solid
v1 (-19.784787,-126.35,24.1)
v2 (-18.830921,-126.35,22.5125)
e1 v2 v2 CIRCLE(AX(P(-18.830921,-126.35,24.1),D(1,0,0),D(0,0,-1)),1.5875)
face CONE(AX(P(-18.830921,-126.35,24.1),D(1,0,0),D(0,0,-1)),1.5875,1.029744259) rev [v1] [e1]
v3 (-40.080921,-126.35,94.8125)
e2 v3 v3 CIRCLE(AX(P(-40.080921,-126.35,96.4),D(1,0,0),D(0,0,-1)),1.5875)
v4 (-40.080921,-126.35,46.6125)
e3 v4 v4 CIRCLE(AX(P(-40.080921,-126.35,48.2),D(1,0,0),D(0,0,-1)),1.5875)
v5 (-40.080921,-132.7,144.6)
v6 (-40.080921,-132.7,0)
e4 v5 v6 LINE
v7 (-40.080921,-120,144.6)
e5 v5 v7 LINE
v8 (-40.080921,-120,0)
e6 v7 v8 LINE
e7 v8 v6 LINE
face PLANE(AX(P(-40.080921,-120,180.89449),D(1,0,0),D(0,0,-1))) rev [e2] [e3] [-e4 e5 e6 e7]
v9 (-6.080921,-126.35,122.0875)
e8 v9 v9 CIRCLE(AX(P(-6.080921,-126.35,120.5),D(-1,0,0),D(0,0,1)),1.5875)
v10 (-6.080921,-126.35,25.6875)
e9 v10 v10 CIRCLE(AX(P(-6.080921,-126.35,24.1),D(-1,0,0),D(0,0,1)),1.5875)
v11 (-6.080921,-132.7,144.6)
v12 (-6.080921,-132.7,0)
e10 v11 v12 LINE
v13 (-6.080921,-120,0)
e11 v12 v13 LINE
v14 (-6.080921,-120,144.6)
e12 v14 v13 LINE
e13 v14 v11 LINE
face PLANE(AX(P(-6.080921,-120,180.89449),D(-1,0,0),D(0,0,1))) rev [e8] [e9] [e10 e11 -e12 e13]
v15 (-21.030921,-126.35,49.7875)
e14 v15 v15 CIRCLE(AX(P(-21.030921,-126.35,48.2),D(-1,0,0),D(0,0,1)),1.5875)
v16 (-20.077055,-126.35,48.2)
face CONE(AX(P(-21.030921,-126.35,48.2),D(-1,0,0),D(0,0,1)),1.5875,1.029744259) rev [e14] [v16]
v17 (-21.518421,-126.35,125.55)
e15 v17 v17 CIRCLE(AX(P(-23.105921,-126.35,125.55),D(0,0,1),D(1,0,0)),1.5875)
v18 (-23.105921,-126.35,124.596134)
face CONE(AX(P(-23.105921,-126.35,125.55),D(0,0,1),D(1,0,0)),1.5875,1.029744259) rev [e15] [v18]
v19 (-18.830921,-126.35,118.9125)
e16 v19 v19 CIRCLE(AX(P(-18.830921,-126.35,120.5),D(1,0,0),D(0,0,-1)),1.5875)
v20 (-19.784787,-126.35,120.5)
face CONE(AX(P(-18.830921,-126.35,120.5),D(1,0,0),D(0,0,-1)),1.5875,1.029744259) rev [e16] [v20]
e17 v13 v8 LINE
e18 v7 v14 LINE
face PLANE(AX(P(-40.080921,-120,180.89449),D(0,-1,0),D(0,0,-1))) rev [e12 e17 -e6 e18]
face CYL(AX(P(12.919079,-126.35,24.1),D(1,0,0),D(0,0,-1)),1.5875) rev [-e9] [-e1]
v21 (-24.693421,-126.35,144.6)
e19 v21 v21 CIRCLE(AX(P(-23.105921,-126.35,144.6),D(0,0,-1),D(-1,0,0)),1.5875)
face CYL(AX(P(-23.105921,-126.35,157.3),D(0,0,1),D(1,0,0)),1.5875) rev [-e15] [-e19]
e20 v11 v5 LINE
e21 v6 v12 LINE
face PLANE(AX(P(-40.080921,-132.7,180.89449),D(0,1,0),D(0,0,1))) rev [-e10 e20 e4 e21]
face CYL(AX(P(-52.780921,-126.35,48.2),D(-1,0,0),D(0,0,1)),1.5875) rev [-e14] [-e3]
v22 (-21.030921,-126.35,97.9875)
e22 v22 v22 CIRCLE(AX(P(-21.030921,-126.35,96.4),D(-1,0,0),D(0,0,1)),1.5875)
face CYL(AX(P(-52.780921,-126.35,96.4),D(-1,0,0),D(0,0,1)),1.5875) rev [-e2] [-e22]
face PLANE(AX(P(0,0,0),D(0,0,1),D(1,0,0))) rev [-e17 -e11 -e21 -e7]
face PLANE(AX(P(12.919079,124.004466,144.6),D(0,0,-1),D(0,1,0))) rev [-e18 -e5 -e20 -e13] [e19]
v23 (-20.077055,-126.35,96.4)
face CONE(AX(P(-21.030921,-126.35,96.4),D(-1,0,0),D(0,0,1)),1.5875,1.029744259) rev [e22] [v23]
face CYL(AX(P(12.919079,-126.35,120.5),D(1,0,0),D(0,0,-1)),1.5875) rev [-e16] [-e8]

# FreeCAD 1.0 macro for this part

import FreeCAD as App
import Part
import Sketcher
from FreeCAD import Vector
Q = App.Units.Quantity

doc = App.newDocument("Part")
body = doc.addObject("PartDesign::Body", "Body")

sketch1 = body.newObject("Sketcher::SketchObject", "Sketch")
sketch1.AttachmentSupport = (doc.getObject("XY_Plane"), [""])
sketch1.MapMode = "FlatFace"
sketch1.addGeometry([
    Part.LineSegment(Vector(-40, -120, 0), Vector(-40, -133, 0)),
    Part.LineSegment(Vector(-40, -133, 0), Vector(-6, -133, 0)),
    Part.LineSegment(Vector(-6, -133, 0), Vector(-6, -120, 0)),
    Part.LineSegment(Vector(-6, -120, 0), Vector(-40, -120, 0)),
], False)
sketch1.addConstraint([
    Sketcher.Constraint("Coincident", 0, 2, 1, 1),
    Sketcher.Constraint("Coincident", 1, 2, 2, 1),
    Sketcher.Constraint("Coincident", 2, 2, 3, 1),
    Sketcher.Constraint("Coincident", 3, 2, 0, 1),
    Sketcher.Constraint("Vertical", 0),
    Sketcher.Constraint("Horizontal", 1),
    Sketcher.Constraint("Vertical", 2),
    Sketcher.Constraint("Horizontal", 3),
    Sketcher.Constraint("DistanceY", 0, 2, 0, 1, Q("0.5 in")),
    Sketcher.Constraint("DistanceX", 1, 1, 1, 2, 34.0),
    Sketcher.Constraint("DistanceY", 0, 2, -1, 1, 132.7),
    Sketcher.Constraint("DistanceX", 0, 2, -1, 1, 40.080921),
])
pad1 = body.newObject("PartDesign::Pad", "Pad")
pad1.Profile = sketch1
pad1.Length = 144.6

sketch2 = body.newObject("Sketcher::SketchObject", "Sketch001")
sketch2.AttachmentSupport = (doc.getObject("YZ_Plane"), [""])
sketch2.MapMode = "FlatFace"
sketch2.AttachmentOffset = App.Placement(Vector(0, 0, 12.919079), App.Rotation())
sketch2.addGeometry([
    Part.Circle(Vector(-126.3, -6.3, 0), Vector(0, 0, 1), 1.6),
    Part.Circle(Vector(-146.1, 150.9, 0), Vector(0, 0, 1), 1.6),
    Part.Circle(Vector(-172.2, 150.9, 0), Vector(0, 0, 1), 1.6),
    Part.Circle(Vector(-126.3, 120.5, 0), Vector(0, 0, 1), 1.6),
    Part.Circle(Vector(-126.3, 24.1, 0), Vector(0, 0, 1), 1.6),
    Part.Circle(Vector(172.2, 150.9, 0), Vector(0, 0, 1), 1.6),
    Part.Circle(Vector(146.1, 150.9, 0), Vector(0, 0, 1), 1.6),
    Part.Circle(Vector(126.3, 120.5, 0), Vector(0, 0, 1), 1.6),
    Part.Circle(Vector(126.3, 24.1, 0), Vector(0, 0, 1), 1.6),
    Part.Circle(Vector(126.3, -6.3, 0), Vector(0, 0, 1), 1.6),
], False)
sketch2.addConstraint([
    Sketcher.Constraint("Equal", 0, 1),
    Sketcher.Constraint("Equal", 1, 2),
    Sketcher.Constraint("Equal", 2, 3),
    Sketcher.Constraint("Equal", 3, 4),
    Sketcher.Constraint("Equal", 4, 5),
    Sketcher.Constraint("Equal", 5, 6),
    Sketcher.Constraint("Equal", 6, 7),
    Sketcher.Constraint("Equal", 7, 8),
    Sketcher.Constraint("Equal", 8, 9),
    Sketcher.Constraint("Symmetric", 2, 3, 5, 3, -2),
    Sketcher.Constraint("Symmetric", 1, 3, 6, 3, -2),
    Sketcher.Constraint("Symmetric", 3, 3, 7, 3, -2),
    Sketcher.Constraint("Symmetric", 4, 3, 8, 3, -2),
    Sketcher.Constraint("Symmetric", 0, 3, 9, 3, -2),
    Sketcher.Constraint("Horizontal", 1, 3, 2, 3),
    Sketcher.Constraint("Vertical", 0, 3, 3, 3),
    Sketcher.Constraint("Vertical", 3, 3, 4, 3),
    Sketcher.Constraint("Diameter", 0, Q("0.125 in")),
    Sketcher.Constraint("DistanceY", 0, 3, -1, 1, Q("0.25 in")),
    Sketcher.Constraint("DistanceX", 0, 3, -1, 1, 126.35),
    Sketcher.Constraint("DistanceY", -1, 1, 1, 3, 150.95),
    Sketcher.Constraint("DistanceY", -1, 1, 3, 3, 120.5),
    Sketcher.Constraint("DistanceY", -1, 1, 4, 3, 24.1),
    Sketcher.Constraint("DistanceX", 1, 3, 5, 3, 318.25),
    Sketcher.Constraint("DistanceX", 1, 3, -1, 1, 146.083333),
])
doc.recompute()
hole = body.newObject("PartDesign::Hole", "Hole")
hole.Profile = sketch2
hole.ThreadType = "None"
hole.Diameter = Q("0.125 in")
hole.DepthType = "Dimension"
hole.Depth = Q("1.25 in")
hole.DrillPoint = "Angled"
hole.DrillPointAngle = 118
hole.HoleCutType = "Countersink"
hole.HoleCutDiameter = Q("0.4 in")
hole.HoleCutCountersinkAngle = 82

sketch3 = body.newObject("Sketcher::SketchObject", "Sketch002")
sketch3.AttachmentSupport = (doc.getObject("YZ_Plane"), [""])
sketch3.MapMode = "FlatFace"
sketch3.AttachmentOffset = App.Placement(Vector(0, 0, 12.919079), App.Rotation())
sketch3.addGeometry([
    Part.Circle(Vector(126.3, 150.9, 0), Vector(0, 0, 1), 1.6),
    Part.Circle(Vector(146.1, -6.3, 0), Vector(0, 0, 1), 1.6),
    Part.Circle(Vector(172.2, -6.3, 0), Vector(0, 0, 1), 1.6),
    Part.Circle(Vector(126.3, 24.1, 0), Vector(0, 0, 1), 1.6),
    Part.Circle(Vector(126.3, 120.5, 0), Vector(0, 0, 1), 1.6),
    Part.Circle(Vector(-172.2, -6.3, 0), Vector(0, 0, 1), 1.6),
    Part.Circle(Vector(-146.1, -6.3, 0), Vector(0, 0, 1), 1.6),
    Part.Circle(Vector(-126.3, 24.1, 0), Vector(0, 0, 1), 1.6),
    Part.Circle(Vector(-126.3, 120.5, 0), Vector(0, 0, 1), 1.6),
    Part.Circle(Vector(-126.3, 150.9, 0), Vector(0, 0, 1), 1.6),
], False)
sketch3.addConstraint([
    Sketcher.Constraint("Equal", 0, 1),
    Sketcher.Constraint("Equal", 1, 2),
    Sketcher.Constraint("Equal", 2, 3),
    Sketcher.Constraint("Equal", 3, 4),
    Sketcher.Constraint("Equal", 4, 5),
    Sketcher.Constraint("Equal", 5, 6),
    Sketcher.Constraint("Equal", 6, 7),
    Sketcher.Constraint("Equal", 7, 8),
    Sketcher.Constraint("Equal", 8, 9),
    Sketcher.Constraint("Symmetric", 2, 3, 5, 3, -2),
    Sketcher.Constraint("Symmetric", 1, 3, 6, 3, -2),
    Sketcher.Constraint("Symmetric", 3, 3, 7, 3, -2),
    Sketcher.Constraint("Symmetric", 4, 3, 8, 3, -2),
    Sketcher.Constraint("Symmetric", 0, 3, 9, 3, -2),
    Sketcher.Constraint("Horizontal", 1, 3, 2, 3),
    Sketcher.Constraint("Vertical", 0, 3, 3, 3),
    Sketcher.Constraint("Vertical", 3, 3, 4, 3),
    Sketcher.Constraint("Diameter", 0, Q("0.125 in")),
    Sketcher.Constraint("DistanceY", 1, 3, -1, 1, Q("0.25 in")),
    Sketcher.Constraint("DistanceX", -1, 1, 0, 3, 126.35),
    Sketcher.Constraint("DistanceY", -1, 1, 0, 3, 150.95),
    Sketcher.Constraint("DistanceY", -1, 1, 3, 3, 24.1),
    Sketcher.Constraint("DistanceY", -1, 1, 4, 3, 120.5),
    Sketcher.Constraint("DistanceX", 5, 3, 1, 3, 318.25),
    Sketcher.Constraint("DistanceX", -1, 1, 1, 3, 146.083333),
])
doc.recompute()
hole2 = body.newObject("PartDesign::Hole", "Hole001")
hole2.Profile = sketch3
hole2.ThreadType = "None"
hole2.Diameter = Q("0.125 in")
hole2.DepthType = "Dimension"
hole2.Depth = Q("1.25 in")
hole2.DrillPoint = "Angled"
hole2.DrillPointAngle = 118
hole2.HoleCutType = "Countersink"
hole2.HoleCutDiameter = Q("0.4 in")
hole2.HoleCutCountersinkAngle = 82

sketch4 = body.newObject("Sketcher::SketchObject", "Sketch003")
sketch4.AttachmentSupport = (doc.getObject("XY_Plane"), [""])
sketch4.MapMode = "FlatFace"
sketch4.AttachmentOffset = App.Placement(Vector(0, 0, 157.3), App.Rotation())
sketch4.addGeometry([
    Part.Circle(Vector(-23.1, -207.8, 0), Vector(0, 0, 1), 1.6),
    Part.Circle(Vector(-23.1, -126.3, 0), Vector(0, 0, 1), 1.6),
], False)
sketch4.addConstraint([
    Sketcher.Constraint("Equal", 0, 1),
    Sketcher.Constraint("Vertical", 0, 3, 1, 3),
    Sketcher.Constraint("Diameter", 0, Q("0.125 in")),
    Sketcher.Constraint("DistanceY", 0, 3, -1, 1, 207.775),
    Sketcher.Constraint("DistanceY", 1, 3, -1, 1, 126.35),
    Sketcher.Constraint("DistanceX", 0, 3, -1, 1, 23.105921),
])
doc.recompute()
hole3 = body.newObject("PartDesign::Hole", "Hole002")
hole3.Profile = sketch4
hole3.ThreadType = "None"
hole3.Diameter = Q("0.125 in")
hole3.DepthType = "Dimension"
hole3.Depth = Q("1.25 in")
hole3.DrillPoint = "Angled"
hole3.DrillPointAngle = 118
hole3.HoleCutType = "Countersink"
hole3.HoleCutDiameter = Q("0.4 in")
hole3.HoleCutCountersinkAngle = 82

sketch5 = body.newObject("Sketcher::SketchObject", "Sketch004")
sketch5.AttachmentSupport = (doc.getObject("YZ_Plane"), [""])
sketch5.MapMode = "FlatFace"
sketch5.AttachmentOffset = App.Placement(Vector(0, 0, -52.780921), App.Rotation())
sketch5.addGeometry([
    Part.Circle(Vector(207.8, 322.6, 0), Vector(0, 0, 1), 1.6),
    Part.Circle(Vector(207.8, 215.1, 0), Vector(0, 0, 1), 1.6),
    Part.Circle(Vector(207.8, 127, 0), Vector(0, 0, 1), 1.6),
    Part.Circle(Vector(172.2, -6.3, 0), Vector(0, 0, 1), 1.6),
    Part.Circle(Vector(146.1, -6.3, 0), Vector(0, 0, 1), 1.6),
    Part.Circle(Vector(94.6, 150.9, 0), Vector(0, 0, 1), 1.6),
    Part.Circle(Vector(0, 150.9, 0), Vector(0, 0, 1), 1.6),
    Part.Circle(Vector(-94.6, 150.9, 0), Vector(0, 0, 1), 1.6),
    Part.Circle(Vector(-146.1, -6.3, 0), Vector(0, 0, 1), 1.6),
    Part.Circle(Vector(-172.2, -6.3, 0), Vector(0, 0, 1), 1.6),
    Part.Circle(Vector(-207.8, 127, 0), Vector(0, 0, 1), 1.6),
    Part.Circle(Vector(-207.8, 215.1, 0), Vector(0, 0, 1), 1.6),
    Part.Circle(Vector(-207.8, 322.6, 0), Vector(0, 0, 1), 1.6),
    Part.Circle(Vector(-166.8, 291.5, 0), Vector(0, 0, 1), 1.6),
    Part.Circle(Vector(-41, 291.5, 0), Vector(0, 0, 1), 1.6),
    Part.Circle(Vector(41, 291.5, 0), Vector(0, 0, 1), 1.6),
    Part.Circle(Vector(166.8, 291.5, 0), Vector(0, 0, 1), 1.6),
    Part.Circle(Vector(0, 182.7, 0), Vector(0, 0, 1), 1.6),
    Part.Circle(Vector(0, 291.5, 0), Vector(0, 0, 1), 1.6),
    Part.Circle(Vector(0, 401.9, 0), Vector(0, 0, 1), 1.6),
    Part.Circle(Vector(126.3, 96.4, 0), Vector(0, 0, 1), 1.6),
    Part.Circle(Vector(126.3, 48.2, 0), Vector(0, 0, 1), 1.6),
    Part.Circle(Vector(-126.3, 48.2, 0), Vector(0, 0, 1), 1.6),
    Part.Circle(Vector(-126.3, 96.4, 0), Vector(0, 0, 1), 1.6),
], False)
sketch5.addConstraint([
    Sketcher.Constraint("Equal", 0, 1),
    Sketcher.Constraint("Equal", 1, 2),
    Sketcher.Constraint("Equal", 2, 3),
    Sketcher.Constraint("Equal", 3, 4),
    Sketcher.Constraint("Equal", 4, 5),
    Sketcher.Constraint("Equal", 5, 6),
    Sketcher.Constraint("Equal", 6, 7),
    Sketcher.Constraint("Equal", 7, 8),
    Sketcher.Constraint("Equal", 8, 9),
    Sketcher.Constraint("Equal", 9, 10),
    Sketcher.Constraint("Equal", 10, 11),
    Sketcher.Constraint("Equal", 11, 12),
    Sketcher.Constraint("Equal", 12, 13),
    Sketcher.Constraint("Equal", 13, 14),
    Sketcher.Constraint("Equal", 14, 15),
    Sketcher.Constraint("Equal", 15, 16),
    Sketcher.Constraint("Equal", 16, 17),
    Sketcher.Constraint("Equal", 17, 18),
    Sketcher.Constraint("Equal", 18, 19),
    Sketcher.Constraint("Equal", 19, 20),
    Sketcher.Constraint("Equal", 20, 21),
    Sketcher.Constraint("Equal", 21, 22),
    Sketcher.Constraint("Equal", 22, 23),
    Sketcher.Constraint("Symmetric", 5, 3, 7, 3, -2),
    Sketcher.Constraint("Symmetric", 4, 3, 8, 3, -2),
    Sketcher.Constraint("Symmetric", 3, 3, 9, 3, -2),
    Sketcher.Constraint("Symmetric", 2, 3, 10, 3, -2),
    Sketcher.Constraint("Symmetric", 1, 3, 11, 3, -2),
    Sketcher.Constraint("Symmetric", 0, 3, 12, 3, -2),
    Sketcher.Constraint("Symmetric", 14, 3, 15, 3, -2),
    Sketcher.Constraint("Symmetric", 13, 3, 16, 3, -2),
    Sketcher.Constraint("Symmetric", 21, 3, 22, 3, -2),
    Sketcher.Constraint("Symmetric", 20, 3, 23, 3, -2),
    Sketcher.Constraint("PointOnObject", 6, 3, -2),
    Sketcher.Constraint("PointOnObject", 17, 3, -2),
    Sketcher.Constraint("PointOnObject", 18, 3, -2),
    Sketcher.Constraint("PointOnObject", 19, 3, -2),
    Sketcher.Constraint("Horizontal", 3, 3, 4, 3),
    Sketcher.Constraint("Horizontal", 5, 3, 6, 3),
    Sketcher.Constraint("Horizontal", 13, 3, 14, 3),
    Sketcher.Constraint("Horizontal", 16, 3, 18, 3),
    Sketcher.Constraint("Vertical", 0, 3, 1, 3),
    Sketcher.Constraint("Vertical", 1, 3, 2, 3),
    Sketcher.Constraint("Vertical", 20, 3, 21, 3),
    Sketcher.Constraint("Diameter", 0, Q("0.125 in")),
    Sketcher.Constraint("DistanceY", -1, 1, 2, 3, Q("5 in")),
    Sketcher.Constraint("DistanceY", 3, 3, -1, 1, Q("0.25 in")),
    Sketcher.Constraint("DistanceY", 6, 3, 17, 3, Q("1.25 in")),
    Sketcher.Constraint("DistanceX", 5, 3, 20, 3, Q("1.25 in")),
    Sketcher.Constraint("DistanceX", -1, 1, 0, 3, 207.775),
    Sketcher.Constraint("DistanceX", -1, 1, 5, 3, 94.6),
    Sketcher.Constraint("DistanceY", -1, 1, 5, 3, 150.95),
    Sketcher.Constraint("DistanceY", -1, 1, 20, 3, 96.4),
    Sketcher.Constraint("DistanceY", -1, 1, 21, 3, 48.2),
    Sketcher.Constraint("DistanceX", 8, 3, 3, 3, 318.25),
    Sketcher.Constraint("DistanceY", -1, 1, 0, 3, 322.59712),
    Sketcher.Constraint("DistanceY", -1, 1, 13, 3, 291.546061),
    Sketcher.Constraint("DistanceY", -1, 1, 19, 3, 401.942122),
    Sketcher.Constraint("DistanceY", -1, 1, 1, 3, 215.064747),
    Sketcher.Constraint("DistanceX", -1, 1, 3, 3, 172.166667),
    Sketcher.Constraint("DistanceX", 13, 3, -1, 1, 166.795833),
    Sketcher.Constraint("DistanceX", 14, 3, -1, 1, 40.979167),
])
doc.recompute()
hole4 = body.newObject("PartDesign::Hole", "Hole003")
hole4.Profile = sketch5
hole4.ThreadType = "None"
hole4.Diameter = Q("0.125 in")
hole4.DepthType = "Dimension"
hole4.Depth = Q("1.25 in")
hole4.DrillPoint = "Angled"
hole4.DrillPointAngle = 118
hole4.HoleCutType = "Countersink"
hole4.HoleCutDiameter = Q("0.4 in")
hole4.HoleCutCountersinkAngle = 82
hole4.Reversed = True

sketch6 = body.newObject("Sketcher::SketchObject", "Sketch005")
sketch6.AttachmentSupport = (doc.getObject("YZ_Plane"), [""])
sketch6.MapMode = "FlatFace"
sketch6.AttachmentOffset = App.Placement(Vector(0, 0, -52.780921), App.Rotation())
sketch6.addGeometry([
    Part.Circle(Vector(-207.8, -178, 0), Vector(0, 0, 1), 1.6),
    Part.Circle(Vector(-207.8, -70.5, 0), Vector(0, 0, 1), 1.6),
    Part.Circle(Vector(-207.8, 17.6, 0), Vector(0, 0, 1), 1.6),
    Part.Circle(Vector(-172.2, 150.9, 0), Vector(0, 0, 1), 1.6),
    Part.Circle(Vector(-146.1, 150.9, 0), Vector(0, 0, 1), 1.6),
    Part.Circle(Vector(-94.6, -6.3, 0), Vector(0, 0, 1), 1.6),
    Part.Circle(Vector(0, -6.3, 0), Vector(0, 0, 1), 1.6),
    Part.Circle(Vector(94.6, -6.3, 0), Vector(0, 0, 1), 1.6),
    Part.Circle(Vector(146.1, 150.9, 0), Vector(0, 0, 1), 1.6),
    Part.Circle(Vector(172.2, 150.9, 0), Vector(0, 0, 1), 1.6),
    Part.Circle(Vector(207.8, 17.6, 0), Vector(0, 0, 1), 1.6),
    Part.Circle(Vector(207.8, -70.5, 0), Vector(0, 0, 1), 1.6),
    Part.Circle(Vector(207.8, -178, 0), Vector(0, 0, 1), 1.6),
    Part.Circle(Vector(166.8, -146.9, 0), Vector(0, 0, 1), 1.6),
    Part.Circle(Vector(41, -146.9, 0), Vector(0, 0, 1), 1.6),
    Part.Circle(Vector(-41, -146.9, 0), Vector(0, 0, 1), 1.6),
    Part.Circle(Vector(-166.8, -146.9, 0), Vector(0, 0, 1), 1.6),
    Part.Circle(Vector(0, -38.1, 0), Vector(0, 0, 1), 1.6),
    Part.Circle(Vector(0, -146.9, 0), Vector(0, 0, 1), 1.6),
    Part.Circle(Vector(0, -257.3, 0), Vector(0, 0, 1), 1.6),
    Part.Circle(Vector(-126.3, 48.2, 0), Vector(0, 0, 1), 1.6),
    Part.Circle(Vector(-126.3, 96.4, 0), Vector(0, 0, 1), 1.6),
    Part.Circle(Vector(126.3, 96.4, 0), Vector(0, 0, 1), 1.6),
    Part.Circle(Vector(126.3, 48.2, 0), Vector(0, 0, 1), 1.6),
], False)
sketch6.addConstraint([
    Sketcher.Constraint("Equal", 0, 1),
    Sketcher.Constraint("Equal", 1, 2),
    Sketcher.Constraint("Equal", 2, 3),
    Sketcher.Constraint("Equal", 3, 4),
    Sketcher.Constraint("Equal", 4, 5),
    Sketcher.Constraint("Equal", 5, 6),
    Sketcher.Constraint("Equal", 6, 7),
    Sketcher.Constraint("Equal", 7, 8),
    Sketcher.Constraint("Equal", 8, 9),
    Sketcher.Constraint("Equal", 9, 10),
    Sketcher.Constraint("Equal", 10, 11),
    Sketcher.Constraint("Equal", 11, 12),
    Sketcher.Constraint("Equal", 12, 13),
    Sketcher.Constraint("Equal", 13, 14),
    Sketcher.Constraint("Equal", 14, 15),
    Sketcher.Constraint("Equal", 15, 16),
    Sketcher.Constraint("Equal", 16, 17),
    Sketcher.Constraint("Equal", 17, 18),
    Sketcher.Constraint("Equal", 18, 19),
    Sketcher.Constraint("Equal", 19, 20),
    Sketcher.Constraint("Equal", 20, 21),
    Sketcher.Constraint("Equal", 21, 22),
    Sketcher.Constraint("Equal", 22, 23),
    Sketcher.Constraint("Symmetric", 5, 3, 7, 3, -2),
    Sketcher.Constraint("Symmetric", 4, 3, 8, 3, -2),
    Sketcher.Constraint("Symmetric", 3, 3, 9, 3, -2),
    Sketcher.Constraint("Symmetric", 2, 3, 10, 3, -2),
    Sketcher.Constraint("Symmetric", 1, 3, 11, 3, -2),
    Sketcher.Constraint("Symmetric", 0, 3, 12, 3, -2),
    Sketcher.Constraint("Symmetric", 14, 3, 15, 3, -2),
    Sketcher.Constraint("Symmetric", 13, 3, 16, 3, -2),
    Sketcher.Constraint("Symmetric", 21, 3, 22, 3, -2),
    Sketcher.Constraint("Symmetric", 20, 3, 23, 3, -2),
    Sketcher.Constraint("PointOnObject", 6, 3, -2),
    Sketcher.Constraint("PointOnObject", 17, 3, -2),
    Sketcher.Constraint("PointOnObject", 18, 3, -2),
    Sketcher.Constraint("PointOnObject", 19, 3, -2),
    Sketcher.Constraint("Horizontal", 3, 3, 4, 3),
    Sketcher.Constraint("Horizontal", 5, 3, 6, 3),
    Sketcher.Constraint("Horizontal", 13, 3, 14, 3),
    Sketcher.Constraint("Horizontal", 16, 3, 18, 3),
    Sketcher.Constraint("Vertical", 0, 3, 1, 3),
    Sketcher.Constraint("Vertical", 1, 3, 2, 3),
    Sketcher.Constraint("Vertical", 20, 3, 21, 3),
    Sketcher.Constraint("Diameter", 0, Q("0.125 in")),
    Sketcher.Constraint("DistanceY", 17, 3, -1, 1, Q("1.5 in")),
    Sketcher.Constraint("DistanceY", 5, 3, -1, 1, Q("0.25 in")),
    Sketcher.Constraint("DistanceY", 2, 3, 3, 3, Q("5.25 in")),
    Sketcher.Constraint("DistanceX", 20, 3, 5, 3, Q("1.25 in")),
    Sketcher.Constraint("DistanceX", 0, 3, -1, 1, 207.775),
    Sketcher.Constraint("DistanceY", -1, 1, 2, 3, 17.6),
    Sketcher.Constraint("DistanceX", 5, 3, -1, 1, 94.6),
    Sketcher.Constraint("DistanceY", -1, 1, 20, 3, 48.2),
    Sketcher.Constraint("DistanceY", -1, 1, 21, 3, 96.4),
    Sketcher.Constraint("DistanceX", 3, 3, 8, 3, 318.25),
    Sketcher.Constraint("DistanceY", 0, 3, -1, 1, 177.99712),
    Sketcher.Constraint("DistanceY", 13, 3, -1, 1, 146.946061),
    Sketcher.Constraint("DistanceY", 19, 3, -1, 1, 257.342122),
    Sketcher.Constraint("DistanceY", 1, 3, -1, 1, 70.464747),
    Sketcher.Constraint("DistanceX", 3, 3, -1, 1, 172.166667),
    Sketcher.Constraint("DistanceX", -1, 1, 13, 3, 166.795833),
    Sketcher.Constraint("DistanceX", -1, 1, 14, 3, 40.979167),
])
doc.recompute()
hole5 = body.newObject("PartDesign::Hole", "Hole004")
hole5.Profile = sketch6
hole5.ThreadType = "None"
hole5.Diameter = Q("0.125 in")
hole5.DepthType = "Dimension"
hole5.Depth = Q("1.25 in")
hole5.DrillPoint = "Angled"
hole5.DrillPointAngle = 118
hole5.HoleCutType = "Countersink"
hole5.HoleCutDiameter = Q("0.4 in")
hole5.HoleCutCountersinkAngle = 82
hole5.Reversed = True

doc.recompute()
